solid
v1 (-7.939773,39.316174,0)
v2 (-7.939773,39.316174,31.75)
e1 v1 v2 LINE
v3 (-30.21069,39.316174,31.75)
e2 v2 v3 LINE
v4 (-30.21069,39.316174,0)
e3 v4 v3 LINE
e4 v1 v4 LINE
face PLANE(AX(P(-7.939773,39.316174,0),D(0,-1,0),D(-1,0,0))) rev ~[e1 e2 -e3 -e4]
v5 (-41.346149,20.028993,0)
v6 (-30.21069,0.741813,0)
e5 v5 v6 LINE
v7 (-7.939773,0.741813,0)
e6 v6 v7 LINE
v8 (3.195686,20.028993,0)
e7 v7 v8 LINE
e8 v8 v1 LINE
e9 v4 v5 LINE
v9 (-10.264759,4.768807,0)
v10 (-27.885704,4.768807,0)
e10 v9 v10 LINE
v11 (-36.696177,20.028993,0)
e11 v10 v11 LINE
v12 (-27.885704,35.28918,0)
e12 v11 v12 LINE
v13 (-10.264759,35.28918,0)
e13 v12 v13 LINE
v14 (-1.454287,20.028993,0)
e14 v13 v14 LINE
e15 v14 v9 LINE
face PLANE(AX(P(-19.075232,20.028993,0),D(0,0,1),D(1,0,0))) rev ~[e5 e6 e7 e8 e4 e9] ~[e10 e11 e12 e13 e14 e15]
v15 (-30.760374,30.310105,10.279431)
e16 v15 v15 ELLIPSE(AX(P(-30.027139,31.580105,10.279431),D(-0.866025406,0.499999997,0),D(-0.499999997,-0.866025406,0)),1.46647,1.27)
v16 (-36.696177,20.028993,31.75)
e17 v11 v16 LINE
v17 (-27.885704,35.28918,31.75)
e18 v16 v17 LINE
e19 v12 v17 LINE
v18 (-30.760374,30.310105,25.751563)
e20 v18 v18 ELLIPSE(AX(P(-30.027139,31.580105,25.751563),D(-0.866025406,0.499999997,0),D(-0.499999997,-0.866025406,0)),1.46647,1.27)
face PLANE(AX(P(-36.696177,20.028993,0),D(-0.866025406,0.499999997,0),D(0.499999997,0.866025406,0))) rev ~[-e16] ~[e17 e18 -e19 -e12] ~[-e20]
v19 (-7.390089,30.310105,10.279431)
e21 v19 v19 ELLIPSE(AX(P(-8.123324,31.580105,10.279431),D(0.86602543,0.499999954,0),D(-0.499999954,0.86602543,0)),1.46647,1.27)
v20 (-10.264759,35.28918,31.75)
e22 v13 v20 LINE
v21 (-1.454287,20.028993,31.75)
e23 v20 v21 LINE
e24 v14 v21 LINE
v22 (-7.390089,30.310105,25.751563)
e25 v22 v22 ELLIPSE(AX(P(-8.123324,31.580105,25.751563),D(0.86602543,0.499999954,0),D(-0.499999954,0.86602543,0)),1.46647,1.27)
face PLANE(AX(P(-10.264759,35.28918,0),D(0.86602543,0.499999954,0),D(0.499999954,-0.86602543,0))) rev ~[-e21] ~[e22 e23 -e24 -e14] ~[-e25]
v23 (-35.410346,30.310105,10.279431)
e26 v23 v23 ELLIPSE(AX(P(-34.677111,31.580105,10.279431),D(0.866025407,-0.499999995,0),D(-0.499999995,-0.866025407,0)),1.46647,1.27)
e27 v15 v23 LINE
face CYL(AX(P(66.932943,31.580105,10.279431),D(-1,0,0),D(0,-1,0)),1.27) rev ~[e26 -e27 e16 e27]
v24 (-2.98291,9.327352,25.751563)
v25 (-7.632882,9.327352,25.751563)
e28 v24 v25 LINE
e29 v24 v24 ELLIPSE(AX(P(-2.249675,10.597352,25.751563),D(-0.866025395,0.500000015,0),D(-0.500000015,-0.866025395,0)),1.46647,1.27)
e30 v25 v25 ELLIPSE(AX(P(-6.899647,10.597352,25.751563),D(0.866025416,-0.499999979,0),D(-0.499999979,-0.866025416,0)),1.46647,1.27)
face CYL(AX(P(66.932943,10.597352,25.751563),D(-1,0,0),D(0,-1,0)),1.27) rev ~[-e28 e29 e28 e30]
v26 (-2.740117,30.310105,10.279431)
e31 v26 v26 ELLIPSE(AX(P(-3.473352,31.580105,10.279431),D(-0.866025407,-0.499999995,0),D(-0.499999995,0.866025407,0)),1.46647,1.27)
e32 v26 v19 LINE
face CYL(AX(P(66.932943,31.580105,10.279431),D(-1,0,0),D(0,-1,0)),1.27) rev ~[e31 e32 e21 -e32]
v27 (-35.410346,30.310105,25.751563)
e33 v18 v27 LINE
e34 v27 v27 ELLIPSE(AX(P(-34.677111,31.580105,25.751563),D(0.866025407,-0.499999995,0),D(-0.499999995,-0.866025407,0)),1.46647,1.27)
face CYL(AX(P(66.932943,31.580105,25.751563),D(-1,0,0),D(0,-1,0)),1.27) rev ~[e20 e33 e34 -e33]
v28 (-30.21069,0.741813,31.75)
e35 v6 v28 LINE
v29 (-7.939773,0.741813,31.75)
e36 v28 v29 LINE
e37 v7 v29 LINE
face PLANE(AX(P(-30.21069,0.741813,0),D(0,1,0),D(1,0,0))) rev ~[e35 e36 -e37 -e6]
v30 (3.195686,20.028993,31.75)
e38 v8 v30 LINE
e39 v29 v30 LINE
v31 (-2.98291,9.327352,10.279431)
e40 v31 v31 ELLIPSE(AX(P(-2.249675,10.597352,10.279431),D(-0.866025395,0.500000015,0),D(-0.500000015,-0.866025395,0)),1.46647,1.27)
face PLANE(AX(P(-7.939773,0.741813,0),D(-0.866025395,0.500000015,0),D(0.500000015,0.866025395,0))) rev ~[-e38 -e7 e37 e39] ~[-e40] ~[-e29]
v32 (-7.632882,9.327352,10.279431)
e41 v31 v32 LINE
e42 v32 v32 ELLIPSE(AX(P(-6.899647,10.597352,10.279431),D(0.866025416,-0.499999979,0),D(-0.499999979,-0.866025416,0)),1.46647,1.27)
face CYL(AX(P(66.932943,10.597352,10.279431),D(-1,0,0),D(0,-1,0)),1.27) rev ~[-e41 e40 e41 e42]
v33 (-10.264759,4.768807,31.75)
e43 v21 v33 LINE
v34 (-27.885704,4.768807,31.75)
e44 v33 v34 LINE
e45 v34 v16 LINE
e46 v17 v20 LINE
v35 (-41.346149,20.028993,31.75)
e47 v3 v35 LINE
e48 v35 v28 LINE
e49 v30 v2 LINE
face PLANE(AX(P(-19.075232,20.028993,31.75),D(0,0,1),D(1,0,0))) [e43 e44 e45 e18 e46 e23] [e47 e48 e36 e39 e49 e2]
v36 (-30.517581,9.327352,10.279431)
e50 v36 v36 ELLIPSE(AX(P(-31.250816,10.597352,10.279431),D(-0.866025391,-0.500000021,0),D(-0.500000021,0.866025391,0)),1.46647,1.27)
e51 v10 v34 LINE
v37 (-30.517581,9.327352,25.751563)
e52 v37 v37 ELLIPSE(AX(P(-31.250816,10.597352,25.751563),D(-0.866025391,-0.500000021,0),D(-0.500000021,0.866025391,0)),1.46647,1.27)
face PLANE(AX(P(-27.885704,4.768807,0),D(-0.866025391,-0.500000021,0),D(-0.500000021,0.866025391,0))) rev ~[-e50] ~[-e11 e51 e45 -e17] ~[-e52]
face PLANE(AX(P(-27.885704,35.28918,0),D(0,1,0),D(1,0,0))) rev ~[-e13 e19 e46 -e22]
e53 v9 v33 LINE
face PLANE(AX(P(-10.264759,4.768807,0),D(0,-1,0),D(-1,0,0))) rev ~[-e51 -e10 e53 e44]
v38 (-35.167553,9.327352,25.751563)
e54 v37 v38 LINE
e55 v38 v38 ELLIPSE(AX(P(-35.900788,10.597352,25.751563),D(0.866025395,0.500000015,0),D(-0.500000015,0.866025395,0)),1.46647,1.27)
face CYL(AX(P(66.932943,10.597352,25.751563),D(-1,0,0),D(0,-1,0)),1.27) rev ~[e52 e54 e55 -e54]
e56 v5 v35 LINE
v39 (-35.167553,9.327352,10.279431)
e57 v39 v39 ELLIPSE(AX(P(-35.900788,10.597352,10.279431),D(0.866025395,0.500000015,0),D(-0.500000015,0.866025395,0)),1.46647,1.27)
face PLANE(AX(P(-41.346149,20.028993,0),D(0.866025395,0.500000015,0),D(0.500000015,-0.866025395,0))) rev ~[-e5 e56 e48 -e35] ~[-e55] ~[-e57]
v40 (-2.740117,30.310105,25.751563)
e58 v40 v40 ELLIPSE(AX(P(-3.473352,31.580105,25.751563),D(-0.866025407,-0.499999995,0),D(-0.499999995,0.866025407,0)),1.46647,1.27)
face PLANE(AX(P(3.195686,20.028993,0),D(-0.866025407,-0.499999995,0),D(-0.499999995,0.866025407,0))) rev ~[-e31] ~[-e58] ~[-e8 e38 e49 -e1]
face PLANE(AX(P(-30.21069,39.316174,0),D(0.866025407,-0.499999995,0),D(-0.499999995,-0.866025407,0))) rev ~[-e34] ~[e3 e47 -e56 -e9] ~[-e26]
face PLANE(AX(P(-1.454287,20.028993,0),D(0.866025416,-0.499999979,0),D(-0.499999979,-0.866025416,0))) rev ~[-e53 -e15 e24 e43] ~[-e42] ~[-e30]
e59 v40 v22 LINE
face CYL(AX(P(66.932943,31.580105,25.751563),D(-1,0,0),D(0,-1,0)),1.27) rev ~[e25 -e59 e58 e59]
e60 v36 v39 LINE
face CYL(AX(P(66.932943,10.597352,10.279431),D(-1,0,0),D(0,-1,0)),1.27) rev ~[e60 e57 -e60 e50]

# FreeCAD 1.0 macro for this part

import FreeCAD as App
import Part
import Sketcher
from FreeCAD import Vector
Q = App.Units.Quantity


def add_polygon(sketch, points):
    """Adds a closed chain of lines whose ends are joined by coincident constraints."""
    first, n = sketch.GeometryCount, len(points)
    for a, b in zip(points, points[1:] + points[:1]):
        sketch.addGeometry(Part.LineSegment(App.Vector(*a, 0), App.Vector(*b, 0)), False)
    for i in range(n):
        sketch.addConstraint(Sketcher.Constraint("Coincident", first + i, 2, first + (i + 1) % n, 1))

doc = App.newDocument("Part")
body = doc.addObject("PartDesign::Body", "Body")

sketch1 = body.newObject("Sketcher::SketchObject", "Sketch")
sketch1.AttachmentSupport = (doc.getObject("XY_Plane"), [""])
sketch1.MapMode = "FlatFace"
add_polygon(sketch1, [(-8, 39), (-30, 39), (-41, 20), (-30, 1), (-8, 1), (3, 20)])
add_polygon(sketch1, [(-28, 5), (-37, 20), (-28, 35), (-10, 35), (-1, 20), (-10, 5)])
sketch1.addConstraint(Sketcher.Constraint("Horizontal", 0))
sketch1.addConstraint(Sketcher.Constraint("Horizontal", 3))
sketch1.addConstraint(Sketcher.Constraint("Horizontal", 8))
sketch1.addConstraint(Sketcher.Constraint("Horizontal", 11))
sketch1.addConstraint(Sketcher.Constraint("Parallel", 1, 4))
sketch1.addConstraint(Sketcher.Constraint("Parallel", 2, 5))
sketch1.addConstraint(Sketcher.Constraint("Parallel", 5, 6))
sketch1.addConstraint(Sketcher.Constraint("Parallel", 4, 7))
sketch1.addConstraint(Sketcher.Constraint("Parallel", 6, 9))
sketch1.addConstraint(Sketcher.Constraint("Parallel", 7, 10))
sketch1.addConstraint(Sketcher.Constraint("Horizontal", 1, 2, 4, 2))
sketch1.addConstraint(Sketcher.Constraint("Horizontal", 4, 2, 6, 2))
sketch1.addConstraint(Sketcher.Constraint("Horizontal", 6, 2, 9, 2))
sketch1.addConstraint(Sketcher.Constraint("Vertical", 0, 2, 2, 2))
sketch1.addConstraint(Sketcher.Constraint("Vertical", 3, 2, 5, 2))
sketch1.addConstraint(Sketcher.Constraint("Vertical", 8, 2, 10, 2))
sketch1.addConstraint(Sketcher.Constraint("Angle", 1, Q("-120 deg")))
sketch1.addConstraint(Sketcher.Constraint("Distance", 1, 22.270918))
sketch1.addConstraint(Sketcher.Constraint("DistanceX", 0, 2, 0, 1, 22.270917))
sketch1.addConstraint(Sketcher.Constraint("DistanceX", 8, 1, 8, 2, 17.620945))
sketch1.addConstraint(Sketcher.Constraint("DistanceX", 0, 2, -1, 1, 30.21069))
sketch1.addConstraint(Sketcher.Constraint("DistanceY", -1, 1, 7, 2, 35.28918))
sketch1.addConstraint(Sketcher.Constraint("DistanceX", 8, 2, -1, 1, 10.264759))
sketch1.addConstraint(Sketcher.Constraint("DistanceX", 1, 2, 6, 2, 4.649972))
pad1 = body.newObject("PartDesign::Pad", "Pad")
pad1.Profile = sketch1
pad1.Length = Q("1.25 in")

sketch2 = body.newObject("Sketcher::SketchObject", "Sketch001")
sketch2.AttachmentSupport = (doc.getObject("YZ_Plane"), [""])
sketch2.MapMode = "FlatFace"
sketch2.addGeometry(Part.Circle(Vector(10.6, 25.8, 0), Vector(0, 0, 1), 1.3), False)
sketch2.addGeometry(Part.Circle(Vector(31.6, 25.8, 0), Vector(0, 0, 1), 1.3), False)
sketch2.addGeometry(Part.Circle(Vector(31.6, 10.3, 0), Vector(0, 0, 1), 1.3), False)
sketch2.addGeometry(Part.Circle(Vector(10.6, 10.3, 0), Vector(0, 0, 1), 1.3), False)
sketch2.addConstraint(Sketcher.Constraint("Equal", 0, 1))
sketch2.addConstraint(Sketcher.Constraint("Equal", 1, 2))
sketch2.addConstraint(Sketcher.Constraint("Equal", 2, 3))
sketch2.addConstraint(Sketcher.Constraint("Horizontal", 0, 3, 1, 3))
sketch2.addConstraint(Sketcher.Constraint("Horizontal", 2, 3, 3, 3))
sketch2.addConstraint(Sketcher.Constraint("Vertical", 1, 3, 2, 3))
sketch2.addConstraint(Sketcher.Constraint("Vertical", 0, 3, 3, 3))
sketch2.addConstraint(Sketcher.Constraint("Diameter", 0, Q("0.1 in")))
sketch2.addConstraint(Sketcher.Constraint("DistanceY", -1, 1, 2, 3, 10.279431))
sketch2.addConstraint(Sketcher.Constraint("DistanceX", -1, 1, 0, 3, 10.597352))
sketch2.addConstraint(Sketcher.Constraint("DistanceY", -1, 1, 0, 3, 25.751563))
sketch2.addConstraint(Sketcher.Constraint("DistanceX", -1, 1, 1, 3, 31.580105))
doc.recompute()
hole = body.newObject("PartDesign::Hole", "Hole")
hole.Profile = sketch2
hole.ThreadType = "None"
hole.Diameter = Q("0.1 in")
hole.DepthType = "ThroughAll"

doc.recompute()
